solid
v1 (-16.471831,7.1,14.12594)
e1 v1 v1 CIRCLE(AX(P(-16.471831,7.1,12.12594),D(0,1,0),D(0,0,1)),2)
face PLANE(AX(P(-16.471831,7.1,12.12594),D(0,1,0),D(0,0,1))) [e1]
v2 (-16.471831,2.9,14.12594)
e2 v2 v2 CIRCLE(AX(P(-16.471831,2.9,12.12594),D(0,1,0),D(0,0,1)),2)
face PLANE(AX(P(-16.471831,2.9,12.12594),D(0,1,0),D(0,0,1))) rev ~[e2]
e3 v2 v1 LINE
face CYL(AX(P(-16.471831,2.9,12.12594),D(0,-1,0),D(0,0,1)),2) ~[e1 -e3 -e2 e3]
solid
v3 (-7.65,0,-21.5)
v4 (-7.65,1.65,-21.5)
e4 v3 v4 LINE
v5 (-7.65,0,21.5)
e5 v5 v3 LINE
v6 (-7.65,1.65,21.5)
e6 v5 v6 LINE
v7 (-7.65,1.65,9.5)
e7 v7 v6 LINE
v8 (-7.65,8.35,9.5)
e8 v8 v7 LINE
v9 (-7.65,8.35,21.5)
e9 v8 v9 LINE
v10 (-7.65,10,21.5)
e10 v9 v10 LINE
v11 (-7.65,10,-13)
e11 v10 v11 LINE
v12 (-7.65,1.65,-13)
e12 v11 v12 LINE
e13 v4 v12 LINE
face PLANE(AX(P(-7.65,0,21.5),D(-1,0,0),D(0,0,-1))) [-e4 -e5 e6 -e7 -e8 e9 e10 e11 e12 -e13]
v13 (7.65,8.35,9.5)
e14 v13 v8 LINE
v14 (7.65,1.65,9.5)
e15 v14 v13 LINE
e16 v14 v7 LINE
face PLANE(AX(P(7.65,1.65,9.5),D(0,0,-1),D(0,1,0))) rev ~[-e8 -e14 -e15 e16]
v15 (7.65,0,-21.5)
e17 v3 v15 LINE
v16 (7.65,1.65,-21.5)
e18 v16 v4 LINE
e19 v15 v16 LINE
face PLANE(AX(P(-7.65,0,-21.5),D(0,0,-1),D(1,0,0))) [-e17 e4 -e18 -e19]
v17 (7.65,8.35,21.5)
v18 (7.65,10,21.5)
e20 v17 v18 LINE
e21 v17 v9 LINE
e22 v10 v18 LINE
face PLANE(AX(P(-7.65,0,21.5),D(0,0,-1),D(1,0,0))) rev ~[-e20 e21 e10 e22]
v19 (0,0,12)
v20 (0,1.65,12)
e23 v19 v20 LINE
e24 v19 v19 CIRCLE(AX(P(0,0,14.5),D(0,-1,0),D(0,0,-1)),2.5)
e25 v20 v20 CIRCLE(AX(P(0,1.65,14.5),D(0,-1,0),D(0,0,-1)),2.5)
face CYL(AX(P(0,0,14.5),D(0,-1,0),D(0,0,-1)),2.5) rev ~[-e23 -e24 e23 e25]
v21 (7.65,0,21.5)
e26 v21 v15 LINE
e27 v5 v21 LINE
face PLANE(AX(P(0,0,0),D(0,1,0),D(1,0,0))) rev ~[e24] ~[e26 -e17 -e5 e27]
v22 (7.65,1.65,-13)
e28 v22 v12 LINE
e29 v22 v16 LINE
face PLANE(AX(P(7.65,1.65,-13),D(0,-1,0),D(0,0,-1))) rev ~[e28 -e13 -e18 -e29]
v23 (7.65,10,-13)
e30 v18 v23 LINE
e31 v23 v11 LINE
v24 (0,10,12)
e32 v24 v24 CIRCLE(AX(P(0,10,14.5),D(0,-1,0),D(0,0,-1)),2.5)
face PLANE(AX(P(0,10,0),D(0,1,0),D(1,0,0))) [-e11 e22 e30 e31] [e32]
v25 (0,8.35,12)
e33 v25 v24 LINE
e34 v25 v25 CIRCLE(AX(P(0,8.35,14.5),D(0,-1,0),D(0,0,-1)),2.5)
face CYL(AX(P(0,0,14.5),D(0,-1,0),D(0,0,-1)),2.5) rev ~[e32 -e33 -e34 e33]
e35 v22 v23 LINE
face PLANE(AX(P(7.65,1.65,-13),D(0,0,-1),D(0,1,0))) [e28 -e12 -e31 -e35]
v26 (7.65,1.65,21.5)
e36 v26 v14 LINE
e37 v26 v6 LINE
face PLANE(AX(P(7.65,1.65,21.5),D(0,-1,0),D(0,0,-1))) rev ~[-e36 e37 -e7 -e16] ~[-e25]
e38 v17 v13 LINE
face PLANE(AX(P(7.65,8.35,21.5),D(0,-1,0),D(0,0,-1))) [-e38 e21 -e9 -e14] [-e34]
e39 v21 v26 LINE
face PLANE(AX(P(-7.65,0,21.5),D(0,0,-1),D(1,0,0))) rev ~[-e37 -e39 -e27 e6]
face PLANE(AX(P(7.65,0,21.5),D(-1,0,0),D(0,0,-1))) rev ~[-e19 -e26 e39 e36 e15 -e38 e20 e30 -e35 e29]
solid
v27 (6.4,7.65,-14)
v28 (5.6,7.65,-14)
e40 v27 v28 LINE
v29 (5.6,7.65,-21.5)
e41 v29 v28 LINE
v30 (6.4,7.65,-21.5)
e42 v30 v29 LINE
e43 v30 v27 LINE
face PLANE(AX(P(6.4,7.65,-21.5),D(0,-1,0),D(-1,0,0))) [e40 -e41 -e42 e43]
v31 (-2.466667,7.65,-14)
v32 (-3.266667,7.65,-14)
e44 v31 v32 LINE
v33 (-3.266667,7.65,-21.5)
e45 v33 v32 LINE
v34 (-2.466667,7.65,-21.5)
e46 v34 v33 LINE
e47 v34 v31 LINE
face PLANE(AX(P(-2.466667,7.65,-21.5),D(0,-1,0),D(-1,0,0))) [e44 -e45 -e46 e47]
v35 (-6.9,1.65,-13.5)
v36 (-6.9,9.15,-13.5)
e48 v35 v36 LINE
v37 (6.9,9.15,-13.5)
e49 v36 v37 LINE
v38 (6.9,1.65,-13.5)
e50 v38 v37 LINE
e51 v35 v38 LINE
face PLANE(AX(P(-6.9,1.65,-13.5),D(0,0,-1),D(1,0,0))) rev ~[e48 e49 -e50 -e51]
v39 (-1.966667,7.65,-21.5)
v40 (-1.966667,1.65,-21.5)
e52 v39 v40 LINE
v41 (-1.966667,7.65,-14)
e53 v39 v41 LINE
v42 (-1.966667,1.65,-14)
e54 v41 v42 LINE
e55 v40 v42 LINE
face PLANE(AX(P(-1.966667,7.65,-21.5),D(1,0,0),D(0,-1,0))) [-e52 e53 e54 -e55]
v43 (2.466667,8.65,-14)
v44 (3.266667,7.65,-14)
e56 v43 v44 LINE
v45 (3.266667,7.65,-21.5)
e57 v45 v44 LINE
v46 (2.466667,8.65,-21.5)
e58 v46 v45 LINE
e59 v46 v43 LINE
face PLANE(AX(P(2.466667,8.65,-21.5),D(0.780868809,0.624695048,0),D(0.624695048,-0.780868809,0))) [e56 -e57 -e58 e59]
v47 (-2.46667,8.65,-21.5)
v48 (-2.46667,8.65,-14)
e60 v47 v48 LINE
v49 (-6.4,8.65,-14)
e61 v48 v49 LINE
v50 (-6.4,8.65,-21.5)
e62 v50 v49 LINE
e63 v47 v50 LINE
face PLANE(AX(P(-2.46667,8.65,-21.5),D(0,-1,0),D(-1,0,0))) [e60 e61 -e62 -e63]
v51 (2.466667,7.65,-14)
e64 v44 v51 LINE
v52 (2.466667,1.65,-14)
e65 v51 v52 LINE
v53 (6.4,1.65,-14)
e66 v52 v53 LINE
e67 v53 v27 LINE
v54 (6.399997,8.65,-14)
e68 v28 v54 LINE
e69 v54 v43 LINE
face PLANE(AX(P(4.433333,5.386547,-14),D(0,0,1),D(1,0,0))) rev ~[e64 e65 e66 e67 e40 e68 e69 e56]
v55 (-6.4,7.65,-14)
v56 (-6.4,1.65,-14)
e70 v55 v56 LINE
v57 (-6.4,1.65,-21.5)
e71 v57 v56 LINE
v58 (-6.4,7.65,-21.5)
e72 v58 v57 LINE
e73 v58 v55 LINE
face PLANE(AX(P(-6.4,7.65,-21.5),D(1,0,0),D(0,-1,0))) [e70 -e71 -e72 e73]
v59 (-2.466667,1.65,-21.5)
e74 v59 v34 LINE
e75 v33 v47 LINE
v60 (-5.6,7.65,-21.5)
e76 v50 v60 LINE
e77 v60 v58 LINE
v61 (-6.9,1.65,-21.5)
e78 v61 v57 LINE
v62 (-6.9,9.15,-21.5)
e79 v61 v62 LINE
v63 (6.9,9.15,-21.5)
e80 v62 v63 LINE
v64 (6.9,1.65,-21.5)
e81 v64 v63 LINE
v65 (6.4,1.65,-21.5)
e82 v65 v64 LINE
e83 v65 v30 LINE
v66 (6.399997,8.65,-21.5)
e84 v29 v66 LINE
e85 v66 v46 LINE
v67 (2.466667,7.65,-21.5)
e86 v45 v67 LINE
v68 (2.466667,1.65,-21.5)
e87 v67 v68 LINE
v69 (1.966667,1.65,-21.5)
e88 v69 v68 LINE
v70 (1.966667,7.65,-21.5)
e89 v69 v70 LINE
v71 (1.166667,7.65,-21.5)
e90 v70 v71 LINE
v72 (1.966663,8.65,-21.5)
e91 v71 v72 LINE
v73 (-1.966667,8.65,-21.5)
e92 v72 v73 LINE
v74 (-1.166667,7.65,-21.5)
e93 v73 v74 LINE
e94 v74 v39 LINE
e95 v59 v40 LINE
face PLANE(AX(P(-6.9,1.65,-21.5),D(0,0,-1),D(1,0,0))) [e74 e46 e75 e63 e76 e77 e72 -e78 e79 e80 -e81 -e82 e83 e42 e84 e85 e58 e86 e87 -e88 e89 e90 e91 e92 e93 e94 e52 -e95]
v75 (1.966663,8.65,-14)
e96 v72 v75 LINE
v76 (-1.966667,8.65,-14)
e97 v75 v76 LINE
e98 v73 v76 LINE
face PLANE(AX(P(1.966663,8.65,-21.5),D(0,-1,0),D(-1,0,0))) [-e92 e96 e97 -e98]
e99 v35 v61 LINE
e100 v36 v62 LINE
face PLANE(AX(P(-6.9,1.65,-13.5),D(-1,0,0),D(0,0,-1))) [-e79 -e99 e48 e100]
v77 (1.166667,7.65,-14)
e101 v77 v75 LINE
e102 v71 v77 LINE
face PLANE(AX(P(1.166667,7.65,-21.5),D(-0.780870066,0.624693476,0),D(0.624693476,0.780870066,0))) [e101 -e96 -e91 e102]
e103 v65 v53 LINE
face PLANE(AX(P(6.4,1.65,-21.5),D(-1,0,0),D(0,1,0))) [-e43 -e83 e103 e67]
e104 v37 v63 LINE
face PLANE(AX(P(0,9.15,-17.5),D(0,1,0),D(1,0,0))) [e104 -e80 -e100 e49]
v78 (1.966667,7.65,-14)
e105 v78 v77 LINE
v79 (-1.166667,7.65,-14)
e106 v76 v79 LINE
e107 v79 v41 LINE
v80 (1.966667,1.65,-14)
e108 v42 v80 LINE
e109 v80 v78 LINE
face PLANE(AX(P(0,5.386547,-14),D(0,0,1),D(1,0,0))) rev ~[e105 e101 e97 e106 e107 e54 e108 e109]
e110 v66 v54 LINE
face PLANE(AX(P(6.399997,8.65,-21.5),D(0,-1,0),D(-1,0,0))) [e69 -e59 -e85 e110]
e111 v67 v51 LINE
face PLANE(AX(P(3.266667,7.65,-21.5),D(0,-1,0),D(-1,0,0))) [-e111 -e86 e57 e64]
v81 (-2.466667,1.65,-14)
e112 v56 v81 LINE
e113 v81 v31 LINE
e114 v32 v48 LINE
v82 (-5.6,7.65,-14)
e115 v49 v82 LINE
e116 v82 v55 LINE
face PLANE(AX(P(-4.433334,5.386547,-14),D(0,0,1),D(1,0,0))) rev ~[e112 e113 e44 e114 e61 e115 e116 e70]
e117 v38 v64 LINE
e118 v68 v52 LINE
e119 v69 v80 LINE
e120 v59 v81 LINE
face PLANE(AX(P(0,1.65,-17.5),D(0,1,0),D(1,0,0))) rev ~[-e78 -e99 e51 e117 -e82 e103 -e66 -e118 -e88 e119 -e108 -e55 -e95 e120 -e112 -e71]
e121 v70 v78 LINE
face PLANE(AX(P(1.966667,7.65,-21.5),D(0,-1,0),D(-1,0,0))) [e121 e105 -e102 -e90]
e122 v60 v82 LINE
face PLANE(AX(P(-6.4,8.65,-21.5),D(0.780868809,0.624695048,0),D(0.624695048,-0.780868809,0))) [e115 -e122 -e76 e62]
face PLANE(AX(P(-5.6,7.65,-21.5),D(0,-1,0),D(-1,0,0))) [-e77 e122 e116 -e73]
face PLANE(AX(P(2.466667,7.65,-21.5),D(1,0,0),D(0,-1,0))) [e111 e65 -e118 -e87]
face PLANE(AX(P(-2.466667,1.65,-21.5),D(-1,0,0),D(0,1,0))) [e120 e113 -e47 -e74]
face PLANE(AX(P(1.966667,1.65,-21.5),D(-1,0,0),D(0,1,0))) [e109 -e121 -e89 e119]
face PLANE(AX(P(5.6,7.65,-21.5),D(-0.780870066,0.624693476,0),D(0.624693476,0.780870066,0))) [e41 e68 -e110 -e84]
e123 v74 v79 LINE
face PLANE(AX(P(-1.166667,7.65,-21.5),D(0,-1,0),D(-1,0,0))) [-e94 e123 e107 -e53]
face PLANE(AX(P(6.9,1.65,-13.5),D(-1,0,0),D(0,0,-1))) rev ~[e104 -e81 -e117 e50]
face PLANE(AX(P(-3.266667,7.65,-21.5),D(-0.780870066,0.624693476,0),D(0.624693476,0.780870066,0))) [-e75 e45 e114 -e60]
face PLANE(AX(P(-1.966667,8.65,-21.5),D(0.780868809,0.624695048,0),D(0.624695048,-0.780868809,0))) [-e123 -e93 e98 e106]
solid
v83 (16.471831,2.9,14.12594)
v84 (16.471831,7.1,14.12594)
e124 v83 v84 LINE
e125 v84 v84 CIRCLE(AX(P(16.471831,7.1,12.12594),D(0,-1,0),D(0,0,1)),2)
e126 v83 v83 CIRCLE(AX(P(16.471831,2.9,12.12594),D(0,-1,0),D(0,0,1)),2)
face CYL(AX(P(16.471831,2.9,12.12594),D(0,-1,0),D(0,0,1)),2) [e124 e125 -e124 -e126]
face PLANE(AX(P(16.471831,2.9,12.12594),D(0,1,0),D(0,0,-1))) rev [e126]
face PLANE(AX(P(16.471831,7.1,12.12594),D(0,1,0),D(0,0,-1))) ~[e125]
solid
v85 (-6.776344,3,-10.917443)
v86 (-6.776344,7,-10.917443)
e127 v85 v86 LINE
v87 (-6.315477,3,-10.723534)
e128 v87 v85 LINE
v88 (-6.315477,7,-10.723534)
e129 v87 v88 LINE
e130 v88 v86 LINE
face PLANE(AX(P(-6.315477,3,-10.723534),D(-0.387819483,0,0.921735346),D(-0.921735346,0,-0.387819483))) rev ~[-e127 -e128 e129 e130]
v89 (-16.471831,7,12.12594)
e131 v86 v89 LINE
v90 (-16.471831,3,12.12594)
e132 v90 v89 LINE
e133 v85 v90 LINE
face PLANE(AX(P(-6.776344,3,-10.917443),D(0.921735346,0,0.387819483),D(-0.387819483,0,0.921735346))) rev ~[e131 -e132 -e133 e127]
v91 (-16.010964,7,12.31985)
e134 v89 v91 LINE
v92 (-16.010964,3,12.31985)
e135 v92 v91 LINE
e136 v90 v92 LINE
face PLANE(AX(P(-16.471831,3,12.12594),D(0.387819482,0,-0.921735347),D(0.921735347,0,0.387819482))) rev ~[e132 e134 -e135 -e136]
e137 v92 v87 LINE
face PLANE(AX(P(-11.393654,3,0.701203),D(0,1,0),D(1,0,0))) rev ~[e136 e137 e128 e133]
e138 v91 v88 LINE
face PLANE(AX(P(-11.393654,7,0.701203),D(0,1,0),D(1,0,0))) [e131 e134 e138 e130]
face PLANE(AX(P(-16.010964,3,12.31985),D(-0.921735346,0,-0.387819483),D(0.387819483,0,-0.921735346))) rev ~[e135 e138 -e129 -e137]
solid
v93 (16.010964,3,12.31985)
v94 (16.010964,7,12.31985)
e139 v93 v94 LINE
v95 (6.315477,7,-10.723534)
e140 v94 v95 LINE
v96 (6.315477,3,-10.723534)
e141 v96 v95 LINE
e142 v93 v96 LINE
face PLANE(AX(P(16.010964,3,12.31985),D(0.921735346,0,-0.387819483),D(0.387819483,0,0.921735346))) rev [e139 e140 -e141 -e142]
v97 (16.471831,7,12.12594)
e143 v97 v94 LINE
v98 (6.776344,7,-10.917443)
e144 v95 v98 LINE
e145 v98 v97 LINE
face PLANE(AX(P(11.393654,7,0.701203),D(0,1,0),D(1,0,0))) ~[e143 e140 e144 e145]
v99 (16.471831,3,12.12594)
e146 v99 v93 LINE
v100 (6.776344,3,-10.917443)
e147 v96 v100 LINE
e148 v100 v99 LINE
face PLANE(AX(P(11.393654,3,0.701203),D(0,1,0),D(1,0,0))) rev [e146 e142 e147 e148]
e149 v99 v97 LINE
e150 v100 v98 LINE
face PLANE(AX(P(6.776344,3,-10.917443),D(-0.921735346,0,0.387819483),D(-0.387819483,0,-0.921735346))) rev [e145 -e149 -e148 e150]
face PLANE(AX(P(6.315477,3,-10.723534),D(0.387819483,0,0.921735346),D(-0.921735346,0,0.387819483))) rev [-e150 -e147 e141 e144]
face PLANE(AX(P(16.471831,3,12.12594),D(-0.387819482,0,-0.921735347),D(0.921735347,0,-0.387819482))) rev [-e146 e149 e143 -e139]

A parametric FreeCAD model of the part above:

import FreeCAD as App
import Part
import Sketcher

V = App.Vector
Q = App.Units.Quantity


def add_polygon(sketch, points):
    """Adds a closed chain of lines whose ends are joined by coincident constraints."""
    first, n = sketch.GeometryCount, len(points)
    for a, b in zip(points, points[1:] + points[:1]):
        sketch.addGeometry(Part.LineSegment(App.Vector(*a, 0), App.Vector(*b, 0)), False)
    for i in range(n):
        sketch.addConstraint(Sketcher.Constraint("Coincident", first + i, 2, first + (i + 1) % n, 1))

doc = App.newDocument("Part")
body = doc.addObject("PartDesign::Body", "Body")

# Sketch on XZ plane
sketch1 = body.newObject("Sketcher::SketchObject", "Sketch")
sketch1.AttachmentSupport = (doc.getObject("XZ_Plane"), [""])
sketch1.MapMode = "FlatFace"
add_polygon(sketch1, [(-8, -22), (-8, 22), (8, 22), (8, -22)])  # lines 0-3
sketch1.addConstraint(Sketcher.Constraint("Vertical", 0))
sketch1.addConstraint(Sketcher.Constraint("Horizontal", 1))
sketch1.addConstraint(Sketcher.Constraint("Vertical", 2))
sketch1.addConstraint(Sketcher.Constraint("Horizontal", 3))
sketch1.addConstraint(Sketcher.Constraint("Symmetric", 0, 2, 2, 2, -1, 1))
sketch1.addConstraint(Sketcher.Constraint("DistanceY", 0, 1, 0, 2, Q("43 mm")))
sketch1.addConstraint(Sketcher.Constraint("DistanceX", 1, 1, 1, 2, Q("15.3 mm")))
pad1 = body.newObject("PartDesign::Pad", "Pad")
pad1.Profile = sketch1
pad1.Length = 10
pad1.Reversed = True

# Sketch on YZ plane
sketch2 = body.newObject("Sketcher::SketchObject", "Sketch001")
sketch2.AttachmentSupport = (doc.getObject("YZ_Plane"), [""])
sketch2.MapMode = "FlatFace"
sketch2.AttachmentOffset = App.Placement(V(0, 0, 7.65), App.Rotation())
add_polygon(sketch2, [(8, 22), (2, 22), (2, 10), (8, 10)])  # lines 0-3
add_polygon(sketch2, [(10, -13), (2, -13), (2, -22), (10, -22)])  # lines 4-7
sketch2.addConstraint(Sketcher.Constraint("Horizontal", 0))
sketch2.addConstraint(Sketcher.Constraint("Vertical", 1))
sketch2.addConstraint(Sketcher.Constraint("Horizontal", 2))
sketch2.addConstraint(Sketcher.Constraint("Vertical", 3))
sketch2.addConstraint(Sketcher.Constraint("Horizontal", 4))
sketch2.addConstraint(Sketcher.Constraint("Vertical", 5))
sketch2.addConstraint(Sketcher.Constraint("Horizontal", 6))
sketch2.addConstraint(Sketcher.Constraint("Vertical", 7))
sketch2.addConstraint(Sketcher.Constraint("Symmetric", 0, 2, 5, 2, -1))
sketch2.addConstraint(Sketcher.Constraint("DistanceY", 1, 2, 1, 1, Q("12 mm")))
sketch2.addConstraint(Sketcher.Constraint("DistanceX", 0, 2, 0, 1, Q("6.7 mm")))
sketch2.addConstraint(Sketcher.Constraint("DistanceY", 5, 2, 5, 1, Q("8.5 mm")))
sketch2.addConstraint(Sketcher.Constraint("DistanceY", 4, 2, -1, 1, Q("13 mm")))
sketch2.addConstraint(Sketcher.Constraint("DistanceX", -1, 1, 6, 2, Q("10 mm")))
sketch2.addConstraint(Sketcher.Constraint("DistanceX", 4, 2, 4, 1, Q("8.35 mm")))
pocket1 = body.newObject("PartDesign::Pocket", "Pocket")
pocket1.Profile = sketch2
pocket1.Type = "ThroughAll"

# Sketch on XZ plane
sketch3 = body.newObject("Sketcher::SketchObject", "Sketch002")
sketch3.AttachmentSupport = (doc.getObject("XZ_Plane"), [""])
sketch3.MapMode = "FlatFace"
sketch3.addGeometry(Part.Circle(V(0, 14.5, 0), V(0, 0, 1), 2.5), False)
sketch3.addConstraint(Sketcher.Constraint("PointOnObject", 0, 3, -2))
sketch3.addConstraint(Sketcher.Constraint("Diameter", 0, Q("5 mm")))
sketch3.addConstraint(Sketcher.Constraint("DistanceY", -1, 1, 0, 3, Q("14.5 mm")))
pocket2 = body.newObject("PartDesign::Pocket", "Pocket001")
pocket2.Profile = sketch3
pocket2.Type = "ThroughAll"
body2 = doc.addObject("PartDesign::Body", "Body001")

# Sketch on XZ plane
sketch4 = body2.newObject("Sketcher::SketchObject", "Sketch003")
sketch4.AttachmentSupport = (doc.getObject("XZ_Plane001"), [""])
sketch4.MapMode = "FlatFace"
sketch4.AttachmentOffset = App.Placement(V(0, 0, -1.65), App.Rotation())
add_polygon(sketch4, [(-7, -22), (-7, -14), (7, -14), (7, -22)])  # lines 0-3
sketch4.addConstraint(Sketcher.Constraint("Vertical", 0))
sketch4.addConstraint(Sketcher.Constraint("Horizontal", 1))
sketch4.addConstraint(Sketcher.Constraint("Vertical", 2))
sketch4.addConstraint(Sketcher.Constraint("Horizontal", 3))
sketch4.addConstraint(Sketcher.Constraint("DistanceY", 0, 1, 0, 2, Q("8 mm")))
sketch4.addConstraint(Sketcher.Constraint("DistanceX", 1, 1, 1, 2, Q("13.8 mm")))
sketch4.addConstraint(Sketcher.Constraint("DistanceX", 0, 2, -1, 1, Q("6.9 mm")))
sketch4.addConstraint(Sketcher.Constraint("DistanceY", 0, 2, -1, 1, Q("13.5 mm")))
pad2 = body2.newObject("PartDesign::Pad", "Pad001")
pad2.Profile = sketch4
pad2.Length = 7.5
pad2.Reversed = True

# Sketch on XY plane
sketch5 = body2.newObject("Sketcher::SketchObject", "Sketch004")
sketch5.AttachmentSupport = (doc.getObject("XY_Plane001"), [""])
sketch5.MapMode = "FlatFace"
sketch5.AttachmentOffset = App.Placement(V(0, 0, -21.5), App.Rotation())
add_polygon(sketch5, [(6.4, 7.7), (6.4, 1.6), (2.5, 1.6), (2.5, 7.7), (3.3, 7.7), (2.5, 8.7), (6.4, 8.7), (5.6, 7.7)])  # lines 0-7
sketch5.addConstraint(Sketcher.Constraint("Vertical", 0))
sketch5.addConstraint(Sketcher.Constraint("Horizontal", 1))
sketch5.addConstraint(Sketcher.Constraint("Vertical", 2))
sketch5.addConstraint(Sketcher.Constraint("Horizontal", 3))
sketch5.addConstraint(Sketcher.Constraint("Horizontal", 5))
sketch5.addConstraint(Sketcher.Constraint("Horizontal", 7))
sketch5.addConstraint(Sketcher.Constraint("Horizontal", 3, 2, 6, 2))
sketch5.addConstraint(Sketcher.Constraint("Vertical", 2, 2, 4, 2))
sketch5.addConstraint(Sketcher.Constraint("Equal", 3, 7))
sketch5.addConstraint(Sketcher.Constraint("DistanceY", 0, 2, 0, 1, Q("6 mm")))
sketch5.addConstraint(Sketcher.Constraint("DistanceX", 3, 1, 3, 2, Q("0.8 mm")))
sketch5.addConstraint(Sketcher.Constraint("DistanceY", 2, 2, 4, 2, Q("1 mm")))
sketch5.addConstraint(Sketcher.Constraint("DistanceX", -1, 1, 0, 2, Q("6.4 mm")))
sketch5.addConstraint(Sketcher.Constraint("DistanceY", -1, 1, 0, 2, Q("1.65 mm")))
sketch5.addConstraint(Sketcher.Constraint("DistanceX", 5, 1, 5, 2, Q("3.93333 mm")))
sketch5.addConstraint(Sketcher.Constraint("DistanceX", 1, 2, 1, 1, Q("3.933333 mm")))
pocket3 = body2.newObject("PartDesign::Pocket", "Pocket002")
pocket3.Profile = sketch5
pocket3.Length = 7.5
pocket3.Reversed = True
doc.recompute()

linearpattern = body2.newObject("PartDesign::LinearPattern", "LinearPattern")
linearpattern.Originals = [pocket3]
linearpattern.Direction = (doc.getObject("X_Axis001"), [""])
linearpattern.Mode = "offset"
linearpattern.Offset = 4.433333
linearpattern.Occurrences = 3
linearpattern.Reversed = True
body2.Tip = linearpattern
body3 = doc.addObject("PartDesign::Body", "Body002")

# Sketch on XZ plane
sketch6 = body3.newObject("Sketcher::SketchObject", "Sketch005")
sketch6.AttachmentSupport = (doc.getObject("XZ_Plane002"), [""])
sketch6.MapMode = "FlatFace"
sketch6.AttachmentOffset = App.Placement(V(0, 0, -3), App.Rotation())
add_polygon(sketch6, [(-6.78, -10.92), (-16.47, 12.13), (-16.01, 12.32), (-6.32, -10.72)])  # lines 0-3
sketch6.addConstraint(Sketcher.Constraint("Perpendicular", 0, 1))
sketch6.addConstraint(Sketcher.Constraint("Perpendicular", 1, 2))
sketch6.addConstraint(Sketcher.Constraint("Perpendicular", 2, 3))
sketch6.addConstraint(Sketcher.Constraint("Distance", 0, Q("25 mm")))
sketch6.addConstraint(Sketcher.Constraint("Distance", 1, Q("0.5 mm")))
sketch6.addConstraint(Sketcher.Constraint("DistanceX", 0, 2, -1, 1, Q("16.471831 mm")))
sketch6.addConstraint(Sketcher.Constraint("DistanceY", -1, 1, 0, 2, Q("12.12594 mm")))
sketch6.addConstraint(Sketcher.Constraint("DistanceY", -1, 1, 1, 2, Q("12.31985 mm")))
pad3 = body3.newObject("PartDesign::Pad", "Pad002")
pad3.Profile = sketch6
pad3.Length = 4
pad3.Reversed = True
body4 = doc.addObject("PartDesign::Body", "Body003")

# Sketch on XZ plane
sketch7 = body4.newObject("Sketcher::SketchObject", "Sketch006")
sketch7.AttachmentSupport = (doc.getObject("XZ_Plane003"), [""])
sketch7.MapMode = "FlatFace"
sketch7.AttachmentOffset = App.Placement(V(0, 0, -3), App.Rotation())
sketch7.addGeometry(Part.Circle(V(-16.5, 12.1, 0), V(0, 0, 1), 2), False)
sketch7.addConstraint(Sketcher.Constraint("Diameter", 0, Q("4 mm")))
sketch7.addConstraint(Sketcher.Constraint("DistanceX", 0, 3, -1, 1, Q("16.471831 mm")))
sketch7.addConstraint(Sketcher.Constraint("DistanceY", -1, 1, 0, 3, Q("12.12594 mm")))
pad4 = body4.newObject("PartDesign::Pad", "Pad003")
pad4.Profile = sketch7
pad4.Type = "TwoLengths"
pad4.Length = 4.1
pad4.Length2 = 0.1
pad4.Reversed = True
body5 = doc.addObject("PartDesign::Body", "Body004")
doc.recompute()

mirroring = doc.addObject("Part::Mirroring", "Mirroring")
mirroring.Source = body4
mirroring.Base = V(0, 0, 0)
mirroring.Normal = V(1, 0, 0)
body5.BaseFeature = mirroring
doc.recompute()
body6 = doc.addObject("PartDesign::Body", "Body005")
doc.recompute()

mirroring2 = doc.addObject("Part::Mirroring", "Mirroring001")
mirroring2.Source = body3
mirroring2.Base = V(0, 0, 0)
mirroring2.Normal = V(1, 0, 0)
body6.BaseFeature = mirroring2
doc.recompute()
mirroring.Visibility = False
mirroring2.Visibility = False

doc.recompute()
